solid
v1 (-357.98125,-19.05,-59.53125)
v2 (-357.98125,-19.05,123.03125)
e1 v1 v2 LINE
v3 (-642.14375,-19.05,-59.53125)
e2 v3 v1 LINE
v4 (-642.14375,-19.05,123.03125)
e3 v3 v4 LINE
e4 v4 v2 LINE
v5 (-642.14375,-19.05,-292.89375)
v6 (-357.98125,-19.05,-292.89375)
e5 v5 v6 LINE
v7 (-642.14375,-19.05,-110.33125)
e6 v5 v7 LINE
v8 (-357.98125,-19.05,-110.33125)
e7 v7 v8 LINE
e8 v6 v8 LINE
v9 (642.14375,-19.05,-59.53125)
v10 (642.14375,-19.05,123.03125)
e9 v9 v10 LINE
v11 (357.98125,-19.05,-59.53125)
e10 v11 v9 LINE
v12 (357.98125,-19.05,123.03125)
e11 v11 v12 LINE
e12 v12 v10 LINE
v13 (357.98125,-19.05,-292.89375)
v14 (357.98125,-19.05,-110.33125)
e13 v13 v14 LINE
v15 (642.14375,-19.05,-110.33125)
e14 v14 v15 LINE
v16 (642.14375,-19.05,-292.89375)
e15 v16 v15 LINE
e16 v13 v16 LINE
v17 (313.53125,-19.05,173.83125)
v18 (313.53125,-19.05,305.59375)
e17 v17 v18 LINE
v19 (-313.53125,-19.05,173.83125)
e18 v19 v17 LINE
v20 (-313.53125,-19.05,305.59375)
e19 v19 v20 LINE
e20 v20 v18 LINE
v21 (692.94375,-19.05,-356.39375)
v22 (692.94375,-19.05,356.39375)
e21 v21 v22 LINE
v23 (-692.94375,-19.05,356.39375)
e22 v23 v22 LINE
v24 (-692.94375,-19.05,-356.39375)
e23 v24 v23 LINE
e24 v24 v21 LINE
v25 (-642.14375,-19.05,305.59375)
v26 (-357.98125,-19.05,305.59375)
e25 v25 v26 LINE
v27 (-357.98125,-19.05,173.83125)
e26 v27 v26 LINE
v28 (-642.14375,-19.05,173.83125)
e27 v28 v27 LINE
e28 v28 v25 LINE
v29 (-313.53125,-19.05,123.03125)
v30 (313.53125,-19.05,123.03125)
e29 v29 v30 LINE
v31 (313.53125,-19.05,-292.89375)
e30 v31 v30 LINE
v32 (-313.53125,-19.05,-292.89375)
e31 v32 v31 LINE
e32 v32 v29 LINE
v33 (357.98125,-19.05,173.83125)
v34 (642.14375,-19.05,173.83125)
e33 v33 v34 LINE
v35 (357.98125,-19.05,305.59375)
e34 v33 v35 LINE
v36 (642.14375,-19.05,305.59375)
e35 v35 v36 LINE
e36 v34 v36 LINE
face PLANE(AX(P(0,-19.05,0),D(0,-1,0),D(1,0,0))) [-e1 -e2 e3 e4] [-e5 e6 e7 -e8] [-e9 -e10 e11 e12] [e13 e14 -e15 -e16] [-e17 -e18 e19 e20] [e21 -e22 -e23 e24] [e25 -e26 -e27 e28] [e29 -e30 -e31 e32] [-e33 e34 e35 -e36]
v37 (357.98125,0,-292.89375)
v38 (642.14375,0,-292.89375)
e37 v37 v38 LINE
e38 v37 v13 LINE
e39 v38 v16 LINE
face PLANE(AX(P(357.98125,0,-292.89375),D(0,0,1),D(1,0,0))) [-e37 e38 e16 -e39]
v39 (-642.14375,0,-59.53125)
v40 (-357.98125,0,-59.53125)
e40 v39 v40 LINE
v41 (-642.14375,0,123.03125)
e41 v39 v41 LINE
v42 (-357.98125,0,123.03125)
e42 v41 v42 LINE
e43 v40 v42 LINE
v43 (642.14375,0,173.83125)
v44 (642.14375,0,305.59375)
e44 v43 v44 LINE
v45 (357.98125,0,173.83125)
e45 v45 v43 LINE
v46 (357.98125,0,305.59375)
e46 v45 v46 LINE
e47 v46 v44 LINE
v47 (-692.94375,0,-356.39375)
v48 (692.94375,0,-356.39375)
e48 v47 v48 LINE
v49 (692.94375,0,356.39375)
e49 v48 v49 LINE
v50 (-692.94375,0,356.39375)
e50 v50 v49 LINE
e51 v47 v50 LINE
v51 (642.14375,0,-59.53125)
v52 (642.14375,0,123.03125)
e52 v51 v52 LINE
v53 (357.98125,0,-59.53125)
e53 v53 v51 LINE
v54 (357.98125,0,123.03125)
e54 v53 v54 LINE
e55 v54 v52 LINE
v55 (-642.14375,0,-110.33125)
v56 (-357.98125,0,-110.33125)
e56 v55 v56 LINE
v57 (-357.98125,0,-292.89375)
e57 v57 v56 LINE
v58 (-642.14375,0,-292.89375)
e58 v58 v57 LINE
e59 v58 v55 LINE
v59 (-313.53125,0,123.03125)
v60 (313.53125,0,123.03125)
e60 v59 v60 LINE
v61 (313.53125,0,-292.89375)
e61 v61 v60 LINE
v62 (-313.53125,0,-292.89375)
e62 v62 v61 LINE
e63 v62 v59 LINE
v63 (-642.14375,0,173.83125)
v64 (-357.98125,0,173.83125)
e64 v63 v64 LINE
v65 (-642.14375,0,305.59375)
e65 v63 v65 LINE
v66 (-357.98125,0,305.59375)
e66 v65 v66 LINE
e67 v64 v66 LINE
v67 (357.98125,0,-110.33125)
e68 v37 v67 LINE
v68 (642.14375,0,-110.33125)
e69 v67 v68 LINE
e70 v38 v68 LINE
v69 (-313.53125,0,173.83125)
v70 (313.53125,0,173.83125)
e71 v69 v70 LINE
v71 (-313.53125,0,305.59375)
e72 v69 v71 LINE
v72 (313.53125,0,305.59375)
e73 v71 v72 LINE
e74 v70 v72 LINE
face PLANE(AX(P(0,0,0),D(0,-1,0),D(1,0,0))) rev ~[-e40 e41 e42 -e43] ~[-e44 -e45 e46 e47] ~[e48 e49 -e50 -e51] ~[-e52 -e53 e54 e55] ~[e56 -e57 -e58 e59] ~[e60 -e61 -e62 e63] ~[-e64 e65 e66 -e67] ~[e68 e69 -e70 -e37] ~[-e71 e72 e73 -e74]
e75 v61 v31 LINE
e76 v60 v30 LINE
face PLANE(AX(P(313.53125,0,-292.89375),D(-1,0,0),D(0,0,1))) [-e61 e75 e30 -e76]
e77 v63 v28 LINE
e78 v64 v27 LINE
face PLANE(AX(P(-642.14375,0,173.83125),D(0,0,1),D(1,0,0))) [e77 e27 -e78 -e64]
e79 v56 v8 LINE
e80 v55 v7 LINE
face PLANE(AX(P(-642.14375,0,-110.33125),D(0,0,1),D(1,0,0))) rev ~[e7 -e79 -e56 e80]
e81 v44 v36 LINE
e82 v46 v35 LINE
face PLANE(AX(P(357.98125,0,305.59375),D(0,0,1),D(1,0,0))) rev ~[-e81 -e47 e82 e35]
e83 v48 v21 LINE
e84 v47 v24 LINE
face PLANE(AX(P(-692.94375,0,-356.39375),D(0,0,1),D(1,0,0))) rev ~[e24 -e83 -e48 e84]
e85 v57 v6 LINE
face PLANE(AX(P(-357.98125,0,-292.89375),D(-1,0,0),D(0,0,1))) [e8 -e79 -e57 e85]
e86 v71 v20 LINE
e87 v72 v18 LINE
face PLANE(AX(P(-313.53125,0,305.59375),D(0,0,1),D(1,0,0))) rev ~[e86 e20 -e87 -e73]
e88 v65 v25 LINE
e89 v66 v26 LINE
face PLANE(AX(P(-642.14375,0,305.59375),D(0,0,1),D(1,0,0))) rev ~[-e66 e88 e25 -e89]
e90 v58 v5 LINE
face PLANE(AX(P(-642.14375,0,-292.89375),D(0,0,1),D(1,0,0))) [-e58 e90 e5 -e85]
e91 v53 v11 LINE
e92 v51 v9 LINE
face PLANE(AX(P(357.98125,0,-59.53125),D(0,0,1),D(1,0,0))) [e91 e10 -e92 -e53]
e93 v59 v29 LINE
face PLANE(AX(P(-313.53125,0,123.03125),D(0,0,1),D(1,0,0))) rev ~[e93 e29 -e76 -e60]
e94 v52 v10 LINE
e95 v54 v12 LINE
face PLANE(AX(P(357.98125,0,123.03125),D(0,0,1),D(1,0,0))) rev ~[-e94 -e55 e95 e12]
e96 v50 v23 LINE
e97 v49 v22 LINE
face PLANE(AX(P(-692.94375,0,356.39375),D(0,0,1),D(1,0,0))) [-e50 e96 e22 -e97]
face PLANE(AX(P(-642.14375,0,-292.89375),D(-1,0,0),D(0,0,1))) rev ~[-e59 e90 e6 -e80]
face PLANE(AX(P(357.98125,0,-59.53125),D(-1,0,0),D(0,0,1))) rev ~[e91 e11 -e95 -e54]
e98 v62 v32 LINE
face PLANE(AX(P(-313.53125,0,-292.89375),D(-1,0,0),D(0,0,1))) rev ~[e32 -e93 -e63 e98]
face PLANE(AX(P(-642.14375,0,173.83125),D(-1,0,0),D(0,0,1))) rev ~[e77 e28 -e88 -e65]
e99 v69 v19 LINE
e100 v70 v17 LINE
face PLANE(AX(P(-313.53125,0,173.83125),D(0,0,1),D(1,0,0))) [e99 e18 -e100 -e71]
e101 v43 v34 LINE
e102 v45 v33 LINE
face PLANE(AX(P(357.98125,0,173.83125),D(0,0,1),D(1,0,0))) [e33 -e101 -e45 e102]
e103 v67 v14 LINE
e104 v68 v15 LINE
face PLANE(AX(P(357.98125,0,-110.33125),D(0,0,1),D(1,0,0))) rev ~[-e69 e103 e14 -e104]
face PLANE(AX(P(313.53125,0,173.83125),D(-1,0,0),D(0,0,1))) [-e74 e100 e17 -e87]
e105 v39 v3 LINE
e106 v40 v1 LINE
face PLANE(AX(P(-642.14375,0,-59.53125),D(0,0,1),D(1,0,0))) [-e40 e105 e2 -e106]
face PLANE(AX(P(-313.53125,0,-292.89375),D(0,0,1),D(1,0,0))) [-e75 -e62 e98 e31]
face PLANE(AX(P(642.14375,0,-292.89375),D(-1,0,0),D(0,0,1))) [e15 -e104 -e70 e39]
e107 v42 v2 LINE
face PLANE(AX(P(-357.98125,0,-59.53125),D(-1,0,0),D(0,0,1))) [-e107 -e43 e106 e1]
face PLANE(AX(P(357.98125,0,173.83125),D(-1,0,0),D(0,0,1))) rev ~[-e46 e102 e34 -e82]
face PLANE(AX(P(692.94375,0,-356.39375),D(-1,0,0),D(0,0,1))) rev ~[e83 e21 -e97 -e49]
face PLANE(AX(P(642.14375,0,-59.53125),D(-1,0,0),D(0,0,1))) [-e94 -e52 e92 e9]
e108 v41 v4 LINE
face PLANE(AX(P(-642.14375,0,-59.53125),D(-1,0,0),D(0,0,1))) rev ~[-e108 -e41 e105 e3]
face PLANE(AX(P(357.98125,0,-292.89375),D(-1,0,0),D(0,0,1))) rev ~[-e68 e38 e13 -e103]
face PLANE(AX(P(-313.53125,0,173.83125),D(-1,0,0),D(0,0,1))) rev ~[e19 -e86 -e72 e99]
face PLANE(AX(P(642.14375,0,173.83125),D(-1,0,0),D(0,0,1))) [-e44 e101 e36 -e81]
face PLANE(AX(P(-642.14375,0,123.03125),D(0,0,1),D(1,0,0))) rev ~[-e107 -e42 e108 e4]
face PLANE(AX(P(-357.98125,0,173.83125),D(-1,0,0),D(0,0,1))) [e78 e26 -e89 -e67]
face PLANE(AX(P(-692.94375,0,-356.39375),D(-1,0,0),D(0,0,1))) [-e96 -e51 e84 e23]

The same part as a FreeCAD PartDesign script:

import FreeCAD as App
import Part
import Sketcher
Q = App.Units.Quantity


def add_polygon(sketch, points):
    """Adds a closed chain of lines whose ends are joined by coincident constraints."""
    first, n = sketch.GeometryCount, len(points)
    for a, b in zip(points, points[1:] + points[:1]):
        sketch.addGeometry(Part.LineSegment(App.Vector(*a, 0), App.Vector(*b, 0)), False)
    for i in range(n):
        sketch.addConstraint(Sketcher.Constraint("Coincident", first + i, 2, first + (i + 1) % n, 1))

doc = App.newDocument("Part")
body = doc.addObject("PartDesign::Body", "Body")

# Sketch on XZ plane
sketch1 = body.newObject("Sketcher::SketchObject", "Sketch")
sketch1.AttachmentSupport = (doc.getObject("XZ_Plane"), [""])
sketch1.MapMode = "FlatFace"
add_polygon(sketch1, [(-693, 356), (-693, -356), (693, -356), (693, 356)])  # lines 0-3
add_polygon(sketch1, [(-358, -293), (-642, -293), (-642, -110), (-358, -110)])  # lines 4-7
add_polygon(sketch1, [(642, -293), (358, -293), (358, -110), (642, -110)])  # lines 8-11
add_polygon(sketch1, [(314, -293), (-314, -293), (-314, 123), (314, 123)])  # lines 12-15
add_polygon(sketch1, [(-358, -60), (-642, -60), (-642, 123), (-358, 123)])  # lines 16-19
add_polygon(sketch1, [(-358, 174), (-642, 174), (-642, 306), (-358, 306)])  # lines 20-23
add_polygon(sketch1, [(642, -60), (358, -60), (358, 123), (642, 123)])  # lines 24-27
add_polygon(sketch1, [(314, 174), (-314, 174), (-314, 306), (314, 306)])  # lines 28-31
add_polygon(sketch1, [(642, 174), (358, 174), (358, 306), (642, 306)])  # lines 32-35
sketch1.addConstraint([
    Sketcher.Constraint("Vertical", 0),
    Sketcher.Constraint("Horizontal", 1),
    Sketcher.Constraint("Vertical", 2),
    Sketcher.Constraint("Horizontal", 3),
    Sketcher.Constraint("Horizontal", 4),
    Sketcher.Constraint("Vertical", 5),
    Sketcher.Constraint("Horizontal", 6),
    Sketcher.Constraint("Vertical", 7),
    Sketcher.Constraint("Horizontal", 8),
    Sketcher.Constraint("Vertical", 9),
    Sketcher.Constraint("Horizontal", 10),
    Sketcher.Constraint("Vertical", 11),
    Sketcher.Constraint("Horizontal", 12),
    Sketcher.Constraint("Vertical", 13),
    Sketcher.Constraint("Horizontal", 14),
    Sketcher.Constraint("Vertical", 15),
    Sketcher.Constraint("Horizontal", 16),
    Sketcher.Constraint("Vertical", 17),
    Sketcher.Constraint("Horizontal", 18),
    Sketcher.Constraint("Vertical", 19),
    Sketcher.Constraint("Horizontal", 20),
    Sketcher.Constraint("Vertical", 21),
    Sketcher.Constraint("Horizontal", 22),
    Sketcher.Constraint("Vertical", 23),
    Sketcher.Constraint("Horizontal", 24),
    Sketcher.Constraint("Vertical", 25),
    Sketcher.Constraint("Horizontal", 26),
    Sketcher.Constraint("Vertical", 27),
    Sketcher.Constraint("Horizontal", 28),
    Sketcher.Constraint("Vertical", 29),
    Sketcher.Constraint("Horizontal", 30),
    Sketcher.Constraint("Vertical", 31),
    Sketcher.Constraint("Horizontal", 32),
    Sketcher.Constraint("Vertical", 33),
    Sketcher.Constraint("Horizontal", 34),
    Sketcher.Constraint("Vertical", 35),
    Sketcher.Constraint("Symmetric", 0, 2, 2, 2, -1, 1),
    Sketcher.Constraint("Symmetric", 7, 2, 8, 2, -2),
    Sketcher.Constraint("Symmetric", 5, 2, 10, 2, -2),
    Sketcher.Constraint("Symmetric", 19, 2, 24, 2, -2),
    Sketcher.Constraint("Symmetric", 17, 2, 26, 2, -2),
    Sketcher.Constraint("Symmetric", 23, 2, 32, 2, -2),
    Sketcher.Constraint("Symmetric", 21, 2, 34, 2, -2),
    Sketcher.Constraint("Horizontal", 11, 2, 12, 2),
    Sketcher.Constraint("Horizontal", 14, 2, 17, 2),
    Sketcher.Constraint("Horizontal", 23, 2, 28, 2),
    Sketcher.Constraint("Horizontal", 22, 2, 29, 2),
    Sketcher.Constraint("Vertical", 5, 2, 16, 2),
    Sketcher.Constraint("Vertical", 7, 2, 18, 2),
    Sketcher.Constraint("Vertical", 17, 2, 20, 2),
    Sketcher.Constraint("Vertical", 19, 2, 22, 2),
    Sketcher.Constraint("Vertical", 13, 2, 28, 2),
    Sketcher.Constraint("Vertical", 15, 2, 30, 2),
    Sketcher.Constraint("Equal", 11, 17),
    Sketcher.Constraint("DistanceX", 0, 2, 4, 2, Q("2 in")),
    Sketcher.Constraint("DistanceY", 5, 2, 16, 2, Q("2 in")),
    Sketcher.Constraint("DistanceY", 17, 2, 20, 2, Q("2 in")),
    Sketcher.Constraint("DistanceY", 21, 2, 3, 2, Q("2 in")),
    Sketcher.Constraint("DistanceY", 0, 2, 4, 2, Q("2.5 in")),
    Sketcher.Constraint("DistanceX", 1, 1, 1, 2, Q("54.5625 in")),
    Sketcher.Constraint("DistanceX", 4, 2, 4, 1, Q("11.1875 in")),
    Sketcher.Constraint("DistanceX", 12, 2, 12, 1, Q("24.6875 in")),
    Sketcher.Constraint("DistanceY", 0, 2, 0, 1, Q("28.0625 in")),
    Sketcher.Constraint("DistanceY", 5, 1, 5, 2, Q("7.1875 in")),
    Sketcher.Constraint("DistanceX", 7, 2, 12, 2, Q("1.75 in")),
])
pad1 = body.newObject("PartDesign::Pad", "Pad")
pad1.Profile = sketch1
pad1.Length = Q("0.75 in")

doc.recompute()
